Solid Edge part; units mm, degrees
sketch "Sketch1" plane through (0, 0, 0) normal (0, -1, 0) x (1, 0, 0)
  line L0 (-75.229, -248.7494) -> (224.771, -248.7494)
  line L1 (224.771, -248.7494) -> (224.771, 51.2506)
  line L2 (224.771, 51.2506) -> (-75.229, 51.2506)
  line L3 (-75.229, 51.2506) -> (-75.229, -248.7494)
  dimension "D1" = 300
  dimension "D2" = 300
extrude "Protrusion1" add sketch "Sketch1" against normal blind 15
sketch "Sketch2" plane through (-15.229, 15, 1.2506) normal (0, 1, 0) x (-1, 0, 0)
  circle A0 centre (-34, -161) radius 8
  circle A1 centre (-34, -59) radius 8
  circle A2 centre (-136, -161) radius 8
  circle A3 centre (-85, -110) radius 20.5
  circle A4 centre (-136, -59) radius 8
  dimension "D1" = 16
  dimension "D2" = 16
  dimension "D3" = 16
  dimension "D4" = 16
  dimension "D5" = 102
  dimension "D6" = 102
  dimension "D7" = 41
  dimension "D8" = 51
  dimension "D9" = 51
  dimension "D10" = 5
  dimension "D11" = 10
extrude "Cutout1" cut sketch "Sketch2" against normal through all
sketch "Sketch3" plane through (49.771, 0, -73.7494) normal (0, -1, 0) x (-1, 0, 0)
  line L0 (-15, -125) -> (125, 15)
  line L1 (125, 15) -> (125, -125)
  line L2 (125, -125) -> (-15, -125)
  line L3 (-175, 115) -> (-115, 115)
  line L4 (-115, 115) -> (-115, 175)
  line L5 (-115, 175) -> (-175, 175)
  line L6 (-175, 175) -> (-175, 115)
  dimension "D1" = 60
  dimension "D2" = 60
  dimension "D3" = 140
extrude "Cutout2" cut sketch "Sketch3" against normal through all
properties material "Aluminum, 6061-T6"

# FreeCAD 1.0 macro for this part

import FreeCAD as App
import Part
import Sketcher
Q = App.Units.Quantity

doc = App.newDocument("Part")
body = doc.addObject("PartDesign::Body", "Body")

sketch1 = body.newObject("Sketcher::SketchObject", "Sketch")
sketch1.AttachmentSupport = (doc.getObject("XZ_Plane"), [""])
sketch1.MapMode = "FlatFace"
sketch1.addGeometry(Part.LineSegment(App.Vector(-75, 51, 0), App.Vector(-75, -249, 0)), False)
sketch1.addGeometry(Part.LineSegment(App.Vector(-75, -249, 0), App.Vector(225, -249, 0)), False)
sketch1.addGeometry(Part.LineSegment(App.Vector(225, -249, 0), App.Vector(225, 51, 0)), False)
sketch1.addGeometry(Part.LineSegment(App.Vector(225, 51, 0), App.Vector(-75, 51, 0)), False)
sketch1.addConstraint(Sketcher.Constraint("Coincident", 0, 2, 1, 1))
sketch1.addConstraint(Sketcher.Constraint("Coincident", 1, 2, 2, 1))
sketch1.addConstraint(Sketcher.Constraint("Coincident", 2, 2, 3, 1))
sketch1.addConstraint(Sketcher.Constraint("Coincident", 3, 2, 0, 1))
sketch1.addConstraint(Sketcher.Constraint("Vertical", 0))
sketch1.addConstraint(Sketcher.Constraint("Horizontal", 1))
sketch1.addConstraint(Sketcher.Constraint("Vertical", 2))
sketch1.addConstraint(Sketcher.Constraint("Horizontal", 3))
sketch1.addConstraint(Sketcher.Constraint("Equal", 3, 0))
sketch1.addConstraint(Sketcher.Constraint("DistanceX", 1, 1, 1, 2, Q("300 mm")))
sketch1.addConstraint(Sketcher.Constraint("DistanceX", 0, 2, -1, 1, Q("75.229 mm")))
sketch1.addConstraint(Sketcher.Constraint("DistanceY", 0, 2, -1, 1, Q("248.7494 mm")))
pad1 = body.newObject("PartDesign::Pad", "Pad")
pad1.Profile = sketch1
pad1.Length = 15
pad1.Reversed = True

sketch2 = body.newObject("Sketcher::SketchObject", "Sketch001")
sketch2.AttachmentSupport = (doc.getObject("XZ_Plane"), [""])
sketch2.MapMode = "FlatFace"
sketch2.AttachmentOffset = App.Placement(App.Vector(0, 0, -15), App.Rotation())
sketch2.addGeometry(Part.Circle(App.Vector(19, -160, 0), App.Vector(0, 0, 1), 8), False)
sketch2.addGeometry(Part.Circle(App.Vector(19, -58, 0), App.Vector(0, 0, 1), 8), False)
sketch2.addGeometry(Part.Circle(App.Vector(121, -160, 0), App.Vector(0, 0, 1), 8), False)
sketch2.addGeometry(Part.Circle(App.Vector(70, -109, 0), App.Vector(0, 0, 1), 20), False)
sketch2.addGeometry(Part.Circle(App.Vector(121, -58, 0), App.Vector(0, 0, 1), 8), False)
sketch2.addConstraint(Sketcher.Constraint("Equal", 0, 1))
sketch2.addConstraint(Sketcher.Constraint("Equal", 1, 2))
sketch2.addConstraint(Sketcher.Constraint("Equal", 2, 4))
sketch2.addConstraint(Sketcher.Constraint("Horizontal", 0, 3, 2, 3))
sketch2.addConstraint(Sketcher.Constraint("Horizontal", 1, 3, 4, 3))
sketch2.addConstraint(Sketcher.Constraint("Vertical", 0, 3, 1, 3))
sketch2.addConstraint(Sketcher.Constraint("Vertical", 2, 3, 4, 3))
sketch2.addConstraint(Sketcher.Constraint("Diameter", 0, Q("16 mm")))
sketch2.addConstraint(Sketcher.Constraint("Diameter", 3, Q("41 mm")))
sketch2.addConstraint(Sketcher.Constraint("DistanceY", 0, 3, 1, 3, Q("102 mm")))
sketch2.addConstraint(Sketcher.Constraint("DistanceX", 0, 3, 2, 3, Q("102 mm")))
sketch2.addConstraint(Sketcher.Constraint("DistanceX", 1, 3, 3, 3, Q("51 mm")))
sketch2.addConstraint(Sketcher.Constraint("DistanceY", 3, 3, 1, 3, Q("51 mm")))
sketch2.addConstraint(Sketcher.Constraint("DistanceX", -1, 1, 0, 3, Q("18.771 mm")))
sketch2.addConstraint(Sketcher.Constraint("DistanceY", 0, 3, -1, 1, Q("159.7494 mm")))
pocket1 = body.newObject("PartDesign::Pocket", "Pocket")
pocket1.Profile = sketch2
pocket1.Type = "ThroughAll"
pocket1.Reversed = True

sketch3 = body.newObject("Sketcher::SketchObject", "Sketch002")
sketch3.AttachmentSupport = (doc.getObject("XZ_Plane"), [""])
sketch3.MapMode = "FlatFace"
sketch3.addGeometry(Part.LineSegment(App.Vector(-75, -89, 0), App.Vector(65, 51, 0)), False)
sketch3.addGeometry(Part.LineSegment(App.Vector(65, 51, 0), App.Vector(-75, 51, 0)), False)
sketch3.addGeometry(Part.LineSegment(App.Vector(-75, 51, 0), App.Vector(-75, -89, 0)), False)
sketch3.addGeometry(Part.LineSegment(App.Vector(225, -249, 0), App.Vector(225, -189, 0)), False)
sketch3.addGeometry(Part.LineSegment(App.Vector(225, -189, 0), App.Vector(165, -189, 0)), False)
sketch3.addGeometry(Part.LineSegment(App.Vector(165, -189, 0), App.Vector(165, -249, 0)), False)
sketch3.addGeometry(Part.LineSegment(App.Vector(165, -249, 0), App.Vector(225, -249, 0)), False)
sketch3.addConstraint(Sketcher.Constraint("Coincident", 0, 2, 1, 1))
sketch3.addConstraint(Sketcher.Constraint("Coincident", 1, 2, 2, 1))
sketch3.addConstraint(Sketcher.Constraint("Coincident", 2, 2, 0, 1))
sketch3.addConstraint(Sketcher.Constraint("Coincident", 3, 2, 4, 1))
sketch3.addConstraint(Sketcher.Constraint("Coincident", 4, 2, 5, 1))
sketch3.addConstraint(Sketcher.Constraint("Coincident", 5, 2, 6, 1))
sketch3.addConstraint(Sketcher.Constraint("Coincident", 6, 2, 3, 1))
sketch3.addConstraint(Sketcher.Constraint("Horizontal", 1))
sketch3.addConstraint(Sketcher.Constraint("Vertical", 2))
sketch3.addConstraint(Sketcher.Constraint("Vertical", 3))
sketch3.addConstraint(Sketcher.Constraint("Horizontal", 4))
sketch3.addConstraint(Sketcher.Constraint("Vertical", 5))
sketch3.addConstraint(Sketcher.Constraint("Horizontal", 6))
sketch3.addConstraint(Sketcher.Constraint("Equal", 1, 2))
sketch3.addConstraint(Sketcher.Constraint("Equal", 6, 3))
sketch3.addConstraint(Sketcher.Constraint("DistanceX", 1, 2, 1, 1, Q("140 mm")))
sketch3.addConstraint(Sketcher.Constraint("DistanceX", 4, 2, 4, 1, Q("60 mm")))
sketch3.addConstraint(Sketcher.Constraint("DistanceX", 0, 2, 3, 2, Q("160 mm")))
sketch3.addConstraint(Sketcher.Constraint("DistanceY", 3, 2, 0, 2, Q("240 mm")))
sketch3.addConstraint(Sketcher.Constraint("DistanceX", -1, 1, 0, 2, Q("64.771 mm")))
sketch3.addConstraint(Sketcher.Constraint("DistanceY", -1, 1, 0, 2, Q("51.2506 mm")))
pocket2 = body.newObject("PartDesign::Pocket", "Pocket001")
pocket2.Profile = sketch3
pocket2.Type = "ThroughAll"

doc.recompute()
